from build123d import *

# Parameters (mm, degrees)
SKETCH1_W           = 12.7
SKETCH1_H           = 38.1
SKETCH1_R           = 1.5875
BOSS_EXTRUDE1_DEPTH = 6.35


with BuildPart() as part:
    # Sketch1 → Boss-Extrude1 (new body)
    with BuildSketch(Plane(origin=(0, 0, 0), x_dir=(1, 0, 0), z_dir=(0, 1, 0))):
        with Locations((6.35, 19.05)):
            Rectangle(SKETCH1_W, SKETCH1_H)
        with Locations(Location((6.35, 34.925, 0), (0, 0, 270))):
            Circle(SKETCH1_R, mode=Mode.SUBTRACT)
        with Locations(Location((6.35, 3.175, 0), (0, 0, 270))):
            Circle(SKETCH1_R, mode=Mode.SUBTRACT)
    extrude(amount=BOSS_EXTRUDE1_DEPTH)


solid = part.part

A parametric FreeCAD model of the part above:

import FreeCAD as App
import Part
import Sketcher
from FreeCAD import Vector
Q = App.Units.Quantity

doc = App.newDocument("Part")
body = doc.addObject("PartDesign::Body", "Body")

# Sketch on XZ plane
sketch1 = body.newObject("Sketcher::SketchObject", "Sketch")
sketch1.AttachmentSupport = (doc.getObject("XZ_Plane"), [""])
sketch1.MapMode = "FlatFace"
sketch1.addGeometry([
    Part.LineSegment(Vector(0, -38.1, 0), Vector(0, 0, 0)),  # 0
    Part.LineSegment(Vector(0, 0, 0), Vector(12.7, 0, 0)),  # 1
    Part.LineSegment(Vector(12.7, 0, 0), Vector(12.7, -38.1, 0)),  # 2
    Part.LineSegment(Vector(12.7, -38.1, 0), Vector(0, -38.1, 0)),  # 3
    Part.Circle(Vector(6.35, -3.175, 0), Vector(0, 0, 1), 1.5875),  # 4
    Part.Circle(Vector(6.35, -34.925, 0), Vector(0, 0, 1), 1.5875),  # 5
], False)
sketch1.addConstraint([
    Sketcher.Constraint("Coincident", 0, 2, 1, 1),
    Sketcher.Constraint("Coincident", 1, 2, 2, 1),
    Sketcher.Constraint("Coincident", 2, 2, 3, 1),
    Sketcher.Constraint("Coincident", 3, 2, 0, 1),
    Sketcher.Constraint("Vertical", 0),
    Sketcher.Constraint("Horizontal", 1),
    Sketcher.Constraint("Vertical", 2),
    Sketcher.Constraint("Horizontal", 3),
    Sketcher.Constraint("Coincident", 0, 2, -1, 1),
    Sketcher.Constraint("Equal", 4, 5),
    Sketcher.Constraint("Vertical", 4, 3, 5, 3),
    Sketcher.Constraint("Diameter", 4, Q("0.125 in")),
    Sketcher.Constraint("DistanceX", 1, 1, 1, 2, Q("0.5 in")),
    Sketcher.Constraint("DistanceY", 0, 1, 0, 2, Q("1.5 in")),
    Sketcher.Constraint("DistanceX", -1, 1, 4, 3, Q("0.25 in")),
    Sketcher.Constraint("DistanceY", 5, 3, 4, 3, Q("1.25 in")),
    Sketcher.Constraint("DistanceY", 4, 3, -1, 1, Q("0.125 in")),
])
pad1 = body.newObject("PartDesign::Pad", "Pad")
pad1.Profile = sketch1
pad1.Length = Q("0.25 in")
pad1.Reversed = True

doc.recompute()
